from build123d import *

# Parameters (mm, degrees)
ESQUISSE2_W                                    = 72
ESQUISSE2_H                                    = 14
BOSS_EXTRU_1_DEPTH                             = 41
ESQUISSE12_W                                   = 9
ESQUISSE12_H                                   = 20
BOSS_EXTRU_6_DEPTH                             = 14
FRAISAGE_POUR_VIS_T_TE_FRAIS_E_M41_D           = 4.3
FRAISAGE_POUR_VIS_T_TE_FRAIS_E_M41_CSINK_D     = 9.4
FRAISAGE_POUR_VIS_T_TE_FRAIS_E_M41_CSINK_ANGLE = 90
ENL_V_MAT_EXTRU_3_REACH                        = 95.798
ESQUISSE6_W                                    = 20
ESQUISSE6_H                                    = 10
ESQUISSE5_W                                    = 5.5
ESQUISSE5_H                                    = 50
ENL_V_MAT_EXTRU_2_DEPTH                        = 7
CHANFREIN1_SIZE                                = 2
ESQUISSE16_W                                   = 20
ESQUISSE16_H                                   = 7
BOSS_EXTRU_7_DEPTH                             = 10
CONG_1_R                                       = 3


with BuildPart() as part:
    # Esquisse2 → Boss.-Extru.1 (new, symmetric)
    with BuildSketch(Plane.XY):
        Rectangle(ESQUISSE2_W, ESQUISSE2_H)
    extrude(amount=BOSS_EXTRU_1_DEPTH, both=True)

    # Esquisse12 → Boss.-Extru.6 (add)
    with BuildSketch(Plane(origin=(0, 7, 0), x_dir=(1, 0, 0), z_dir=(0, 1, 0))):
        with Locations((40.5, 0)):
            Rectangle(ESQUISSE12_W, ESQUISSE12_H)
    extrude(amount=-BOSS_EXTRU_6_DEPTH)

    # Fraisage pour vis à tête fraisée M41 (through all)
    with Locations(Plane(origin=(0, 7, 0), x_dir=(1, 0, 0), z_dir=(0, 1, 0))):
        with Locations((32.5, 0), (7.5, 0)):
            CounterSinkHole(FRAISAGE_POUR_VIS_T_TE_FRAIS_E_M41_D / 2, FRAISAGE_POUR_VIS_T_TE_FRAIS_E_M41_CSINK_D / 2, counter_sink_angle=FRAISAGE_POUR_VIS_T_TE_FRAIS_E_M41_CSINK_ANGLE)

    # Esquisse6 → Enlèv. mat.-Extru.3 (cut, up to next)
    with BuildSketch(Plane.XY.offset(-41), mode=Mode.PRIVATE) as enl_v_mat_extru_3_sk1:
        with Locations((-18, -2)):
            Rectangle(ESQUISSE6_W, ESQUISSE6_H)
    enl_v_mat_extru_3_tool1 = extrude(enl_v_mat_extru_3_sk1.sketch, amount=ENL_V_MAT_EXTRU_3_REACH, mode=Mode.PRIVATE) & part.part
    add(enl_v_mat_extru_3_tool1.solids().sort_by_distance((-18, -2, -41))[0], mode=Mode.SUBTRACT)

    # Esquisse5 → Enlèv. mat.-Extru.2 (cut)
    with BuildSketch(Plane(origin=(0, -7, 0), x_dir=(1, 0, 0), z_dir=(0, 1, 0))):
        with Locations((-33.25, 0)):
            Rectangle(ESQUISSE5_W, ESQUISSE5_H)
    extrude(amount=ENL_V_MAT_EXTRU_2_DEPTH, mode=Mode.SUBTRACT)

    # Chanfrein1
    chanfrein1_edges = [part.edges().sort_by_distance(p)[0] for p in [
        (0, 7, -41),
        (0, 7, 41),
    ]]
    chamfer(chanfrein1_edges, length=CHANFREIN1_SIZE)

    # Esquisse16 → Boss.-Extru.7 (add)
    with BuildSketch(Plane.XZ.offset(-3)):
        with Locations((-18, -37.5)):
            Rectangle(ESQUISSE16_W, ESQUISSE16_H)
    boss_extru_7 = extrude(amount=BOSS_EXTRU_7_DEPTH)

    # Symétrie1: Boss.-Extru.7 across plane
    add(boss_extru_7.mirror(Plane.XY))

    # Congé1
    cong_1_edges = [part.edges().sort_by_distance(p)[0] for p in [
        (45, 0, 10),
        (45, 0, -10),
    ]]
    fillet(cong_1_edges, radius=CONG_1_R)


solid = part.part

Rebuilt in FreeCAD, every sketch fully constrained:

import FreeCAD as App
import Part
import Sketcher
from FreeCAD import Vector


def edges_at(feature, points):
    """Names of the edges that pass closest to the given points."""
    edges = feature.Shape.Edges
    near = lambda p: min(range(len(edges)), key=lambda i: edges[i].distToShape(Part.Vertex(*p))[0])
    return sorted({f"Edge{near(p) + 1}" for p in points})


def add_polygon(sketch, points):
    """Adds a closed chain of lines whose ends are joined by coincident constraints."""
    first, n = sketch.GeometryCount, len(points)
    for a, b in zip(points, points[1:] + points[:1]):
        sketch.addGeometry(Part.LineSegment(App.Vector(*a, 0), App.Vector(*b, 0)), False)
    for i in range(n):
        sketch.addConstraint(Sketcher.Constraint("Coincident", first + i, 2, first + (i + 1) % n, 1))

doc = App.newDocument("Part")
body = doc.addObject("PartDesign::Body", "Body")

sketch1 = body.newObject("Sketcher::SketchObject", "Sketch")
sketch1.AttachmentSupport = (doc.getObject("XY_Plane"), [""])
sketch1.MapMode = "FlatFace"
add_polygon(sketch1, [(-36, 7), (-36, -7), (36, -7), (36, 7)])
sketch1.addConstraint(Sketcher.Constraint("Vertical", 0))
sketch1.addConstraint(Sketcher.Constraint("Horizontal", 1))
sketch1.addConstraint(Sketcher.Constraint("Vertical", 2))
sketch1.addConstraint(Sketcher.Constraint("Horizontal", 3))
sketch1.addConstraint(Sketcher.Constraint("Symmetric", 0, 2, 2, 2, -1, 1))
sketch1.addConstraint(Sketcher.Constraint("DistanceX", 1, 1, 1, 2, 72.0))
sketch1.addConstraint(Sketcher.Constraint("DistanceY", 0, 2, 0, 1, 14.0))
pad1 = body.newObject("PartDesign::Pad", "Pad")
pad1.Profile = sketch1
pad1.Length = 82
pad1.Midplane = True

sketch2 = body.newObject("Sketcher::SketchObject", "Sketch001")
sketch2.AttachmentSupport = (doc.getObject("XZ_Plane"), [""])
sketch2.MapMode = "FlatFace"
sketch2.AttachmentOffset = App.Placement(Vector(0, 0, -7), App.Rotation())
add_polygon(sketch2, [(36, -10), (36, 10), (45, 10), (45, -10)])
sketch2.addConstraint(Sketcher.Constraint("Vertical", 0))
sketch2.addConstraint(Sketcher.Constraint("Horizontal", 1))
sketch2.addConstraint(Sketcher.Constraint("Vertical", 2))
sketch2.addConstraint(Sketcher.Constraint("Horizontal", 3))
sketch2.addConstraint(Sketcher.Constraint("DistanceX", 1, 1, 1, 2, 9.0))
sketch2.addConstraint(Sketcher.Constraint("DistanceY", 0, 1, 0, 2, 20.0))
sketch2.addConstraint(Sketcher.Constraint("DistanceX", -1, 1, 0, 2, 36.0))
sketch2.addConstraint(Sketcher.Constraint("DistanceY", -1, 1, 0, 2, 10.0))
pad2 = body.newObject("PartDesign::Pad", "Pad001")
pad2.Profile = sketch2
pad2.Length = 14

sketch3 = body.newObject("Sketcher::SketchObject", "Sketch002")
sketch3.AttachmentSupport = (doc.getObject("XZ_Plane"), [""])
sketch3.MapMode = "FlatFace"
sketch3.AttachmentOffset = App.Placement(Vector(0, 0, -7), App.Rotation())
sketch3.addGeometry(Part.Circle(Vector(32.5, 0, 0), Vector(0, 0, 1), 2.15), False)
sketch3.addGeometry(Part.Circle(Vector(7.5, 0, 0), Vector(0, 0, 1), 2.15), False)
sketch3.addConstraint(Sketcher.Constraint("Equal", 0, 1))
sketch3.addConstraint(Sketcher.Constraint("PointOnObject", 0, 3, -1))
sketch3.addConstraint(Sketcher.Constraint("PointOnObject", 1, 3, -1))
sketch3.addConstraint(Sketcher.Constraint("Diameter", 0, 4.3))
sketch3.addConstraint(Sketcher.Constraint("DistanceX", 1, 3, 0, 3, 25.0))
sketch3.addConstraint(Sketcher.Constraint("DistanceX", -1, 1, 0, 3, 32.5))
doc.recompute()
hole = body.newObject("PartDesign::Hole", "Hole")
hole.Profile = sketch3
hole.ThreadType = "None"
hole.Diameter = 4.3
hole.DepthType = "ThroughAll"
hole.HoleCutType = "Countersink"
hole.HoleCutDiameter = 9.4
hole.HoleCutCountersinkAngle = 90
hole.Reversed = True

sketch4 = body.newObject("Sketcher::SketchObject", "Sketch003")
sketch4.AttachmentSupport = (doc.getObject("XY_Plane"), [""])
sketch4.MapMode = "FlatFace"
sketch4.AttachmentOffset = App.Placement(Vector(0, 0, -41), App.Rotation())
add_polygon(sketch4, [(-28, 3), (-28, -7), (-8, -7), (-8, 3)])
sketch4.addConstraint(Sketcher.Constraint("Vertical", 0))
sketch4.addConstraint(Sketcher.Constraint("Horizontal", 1))
sketch4.addConstraint(Sketcher.Constraint("Vertical", 2))
sketch4.addConstraint(Sketcher.Constraint("Horizontal", 3))
sketch4.addConstraint(Sketcher.Constraint("DistanceX", 1, 1, 1, 2, 20.0))
sketch4.addConstraint(Sketcher.Constraint("DistanceY", 0, 2, 0, 1, 10.0))
sketch4.addConstraint(Sketcher.Constraint("DistanceX", 0, 2, -1, 1, 28.0))
sketch4.addConstraint(Sketcher.Constraint("DistanceY", 0, 2, -1, 1, 7.0))
pocket1 = body.newObject("PartDesign::Pocket", "Pocket")
pocket1.Profile = sketch4
pocket1.Type = "UpToFirst"
pocket1.Reversed = True

sketch5 = body.newObject("Sketcher::SketchObject", "Sketch004")
sketch5.AttachmentSupport = (doc.getObject("XZ_Plane"), [""])
sketch5.MapMode = "FlatFace"
sketch5.AttachmentOffset = App.Placement(Vector(0, 0, 7), App.Rotation())
add_polygon(sketch5, [(-36, -25), (-36, 25), (-30.5, 25), (-30.5, -25)])
sketch5.addConstraint(Sketcher.Constraint("Vertical", 0))
sketch5.addConstraint(Sketcher.Constraint("Horizontal", 1))
sketch5.addConstraint(Sketcher.Constraint("Vertical", 2))
sketch5.addConstraint(Sketcher.Constraint("Horizontal", 3))
sketch5.addConstraint(Sketcher.Constraint("DistanceY", 0, 1, 0, 2, 50.0))
sketch5.addConstraint(Sketcher.Constraint("DistanceX", 1, 1, 1, 2, 5.5))
sketch5.addConstraint(Sketcher.Constraint("DistanceX", 0, 2, -1, 1, 36.0))
sketch5.addConstraint(Sketcher.Constraint("DistanceY", -1, 1, 0, 2, 25.0))
pocket2 = body.newObject("PartDesign::Pocket", "Pocket001")
pocket2.Profile = sketch5
pocket2.Length = 7
doc.recompute()

chamfer = body.newObject("PartDesign::Chamfer", "Chamfer")
chamfer.Base = (pocket2, edges_at(pocket2, [(0, 7, -41), (0, 7, 41)]))
chamfer.Size = 2

sketch6 = body.newObject("Sketcher::SketchObject", "Sketch005")
sketch6.AttachmentSupport = (doc.getObject("XZ_Plane"), [""])
sketch6.MapMode = "FlatFace"
sketch6.AttachmentOffset = App.Placement(Vector(0, 0, -3), App.Rotation())
add_polygon(sketch6, [(-28, -34), (-28, -41), (-8, -41), (-8, -34)])
sketch6.addConstraint(Sketcher.Constraint("Vertical", 0))
sketch6.addConstraint(Sketcher.Constraint("Horizontal", 1))
sketch6.addConstraint(Sketcher.Constraint("Vertical", 2))
sketch6.addConstraint(Sketcher.Constraint("Horizontal", 3))
sketch6.addConstraint(Sketcher.Constraint("DistanceX", 1, 1, 1, 2, 20.0))
sketch6.addConstraint(Sketcher.Constraint("DistanceY", 0, 2, 0, 1, 7.0))
sketch6.addConstraint(Sketcher.Constraint("DistanceX", 0, 2, -1, 1, 28.0))
sketch6.addConstraint(Sketcher.Constraint("DistanceY", 0, 2, -1, 1, 41.0))
pad3 = body.newObject("PartDesign::Pad", "Pad002")
pad3.Profile = sketch6
pad3.Length = 10
doc.recompute()

mirrored = body.newObject("PartDesign::Mirrored", "Mirrored")
mirrored.Originals = [pad3]
mirrored.MirrorPlane = (doc.getObject("XY_Plane"), [""])
body.Tip = mirrored
doc.recompute()

fillet = body.newObject("PartDesign::Fillet", "Fillet")
fillet.Base = (mirrored, edges_at(mirrored, [(45, 0, 10), (45, 0, -10)]))
fillet.Radius = 3

doc.recompute()
